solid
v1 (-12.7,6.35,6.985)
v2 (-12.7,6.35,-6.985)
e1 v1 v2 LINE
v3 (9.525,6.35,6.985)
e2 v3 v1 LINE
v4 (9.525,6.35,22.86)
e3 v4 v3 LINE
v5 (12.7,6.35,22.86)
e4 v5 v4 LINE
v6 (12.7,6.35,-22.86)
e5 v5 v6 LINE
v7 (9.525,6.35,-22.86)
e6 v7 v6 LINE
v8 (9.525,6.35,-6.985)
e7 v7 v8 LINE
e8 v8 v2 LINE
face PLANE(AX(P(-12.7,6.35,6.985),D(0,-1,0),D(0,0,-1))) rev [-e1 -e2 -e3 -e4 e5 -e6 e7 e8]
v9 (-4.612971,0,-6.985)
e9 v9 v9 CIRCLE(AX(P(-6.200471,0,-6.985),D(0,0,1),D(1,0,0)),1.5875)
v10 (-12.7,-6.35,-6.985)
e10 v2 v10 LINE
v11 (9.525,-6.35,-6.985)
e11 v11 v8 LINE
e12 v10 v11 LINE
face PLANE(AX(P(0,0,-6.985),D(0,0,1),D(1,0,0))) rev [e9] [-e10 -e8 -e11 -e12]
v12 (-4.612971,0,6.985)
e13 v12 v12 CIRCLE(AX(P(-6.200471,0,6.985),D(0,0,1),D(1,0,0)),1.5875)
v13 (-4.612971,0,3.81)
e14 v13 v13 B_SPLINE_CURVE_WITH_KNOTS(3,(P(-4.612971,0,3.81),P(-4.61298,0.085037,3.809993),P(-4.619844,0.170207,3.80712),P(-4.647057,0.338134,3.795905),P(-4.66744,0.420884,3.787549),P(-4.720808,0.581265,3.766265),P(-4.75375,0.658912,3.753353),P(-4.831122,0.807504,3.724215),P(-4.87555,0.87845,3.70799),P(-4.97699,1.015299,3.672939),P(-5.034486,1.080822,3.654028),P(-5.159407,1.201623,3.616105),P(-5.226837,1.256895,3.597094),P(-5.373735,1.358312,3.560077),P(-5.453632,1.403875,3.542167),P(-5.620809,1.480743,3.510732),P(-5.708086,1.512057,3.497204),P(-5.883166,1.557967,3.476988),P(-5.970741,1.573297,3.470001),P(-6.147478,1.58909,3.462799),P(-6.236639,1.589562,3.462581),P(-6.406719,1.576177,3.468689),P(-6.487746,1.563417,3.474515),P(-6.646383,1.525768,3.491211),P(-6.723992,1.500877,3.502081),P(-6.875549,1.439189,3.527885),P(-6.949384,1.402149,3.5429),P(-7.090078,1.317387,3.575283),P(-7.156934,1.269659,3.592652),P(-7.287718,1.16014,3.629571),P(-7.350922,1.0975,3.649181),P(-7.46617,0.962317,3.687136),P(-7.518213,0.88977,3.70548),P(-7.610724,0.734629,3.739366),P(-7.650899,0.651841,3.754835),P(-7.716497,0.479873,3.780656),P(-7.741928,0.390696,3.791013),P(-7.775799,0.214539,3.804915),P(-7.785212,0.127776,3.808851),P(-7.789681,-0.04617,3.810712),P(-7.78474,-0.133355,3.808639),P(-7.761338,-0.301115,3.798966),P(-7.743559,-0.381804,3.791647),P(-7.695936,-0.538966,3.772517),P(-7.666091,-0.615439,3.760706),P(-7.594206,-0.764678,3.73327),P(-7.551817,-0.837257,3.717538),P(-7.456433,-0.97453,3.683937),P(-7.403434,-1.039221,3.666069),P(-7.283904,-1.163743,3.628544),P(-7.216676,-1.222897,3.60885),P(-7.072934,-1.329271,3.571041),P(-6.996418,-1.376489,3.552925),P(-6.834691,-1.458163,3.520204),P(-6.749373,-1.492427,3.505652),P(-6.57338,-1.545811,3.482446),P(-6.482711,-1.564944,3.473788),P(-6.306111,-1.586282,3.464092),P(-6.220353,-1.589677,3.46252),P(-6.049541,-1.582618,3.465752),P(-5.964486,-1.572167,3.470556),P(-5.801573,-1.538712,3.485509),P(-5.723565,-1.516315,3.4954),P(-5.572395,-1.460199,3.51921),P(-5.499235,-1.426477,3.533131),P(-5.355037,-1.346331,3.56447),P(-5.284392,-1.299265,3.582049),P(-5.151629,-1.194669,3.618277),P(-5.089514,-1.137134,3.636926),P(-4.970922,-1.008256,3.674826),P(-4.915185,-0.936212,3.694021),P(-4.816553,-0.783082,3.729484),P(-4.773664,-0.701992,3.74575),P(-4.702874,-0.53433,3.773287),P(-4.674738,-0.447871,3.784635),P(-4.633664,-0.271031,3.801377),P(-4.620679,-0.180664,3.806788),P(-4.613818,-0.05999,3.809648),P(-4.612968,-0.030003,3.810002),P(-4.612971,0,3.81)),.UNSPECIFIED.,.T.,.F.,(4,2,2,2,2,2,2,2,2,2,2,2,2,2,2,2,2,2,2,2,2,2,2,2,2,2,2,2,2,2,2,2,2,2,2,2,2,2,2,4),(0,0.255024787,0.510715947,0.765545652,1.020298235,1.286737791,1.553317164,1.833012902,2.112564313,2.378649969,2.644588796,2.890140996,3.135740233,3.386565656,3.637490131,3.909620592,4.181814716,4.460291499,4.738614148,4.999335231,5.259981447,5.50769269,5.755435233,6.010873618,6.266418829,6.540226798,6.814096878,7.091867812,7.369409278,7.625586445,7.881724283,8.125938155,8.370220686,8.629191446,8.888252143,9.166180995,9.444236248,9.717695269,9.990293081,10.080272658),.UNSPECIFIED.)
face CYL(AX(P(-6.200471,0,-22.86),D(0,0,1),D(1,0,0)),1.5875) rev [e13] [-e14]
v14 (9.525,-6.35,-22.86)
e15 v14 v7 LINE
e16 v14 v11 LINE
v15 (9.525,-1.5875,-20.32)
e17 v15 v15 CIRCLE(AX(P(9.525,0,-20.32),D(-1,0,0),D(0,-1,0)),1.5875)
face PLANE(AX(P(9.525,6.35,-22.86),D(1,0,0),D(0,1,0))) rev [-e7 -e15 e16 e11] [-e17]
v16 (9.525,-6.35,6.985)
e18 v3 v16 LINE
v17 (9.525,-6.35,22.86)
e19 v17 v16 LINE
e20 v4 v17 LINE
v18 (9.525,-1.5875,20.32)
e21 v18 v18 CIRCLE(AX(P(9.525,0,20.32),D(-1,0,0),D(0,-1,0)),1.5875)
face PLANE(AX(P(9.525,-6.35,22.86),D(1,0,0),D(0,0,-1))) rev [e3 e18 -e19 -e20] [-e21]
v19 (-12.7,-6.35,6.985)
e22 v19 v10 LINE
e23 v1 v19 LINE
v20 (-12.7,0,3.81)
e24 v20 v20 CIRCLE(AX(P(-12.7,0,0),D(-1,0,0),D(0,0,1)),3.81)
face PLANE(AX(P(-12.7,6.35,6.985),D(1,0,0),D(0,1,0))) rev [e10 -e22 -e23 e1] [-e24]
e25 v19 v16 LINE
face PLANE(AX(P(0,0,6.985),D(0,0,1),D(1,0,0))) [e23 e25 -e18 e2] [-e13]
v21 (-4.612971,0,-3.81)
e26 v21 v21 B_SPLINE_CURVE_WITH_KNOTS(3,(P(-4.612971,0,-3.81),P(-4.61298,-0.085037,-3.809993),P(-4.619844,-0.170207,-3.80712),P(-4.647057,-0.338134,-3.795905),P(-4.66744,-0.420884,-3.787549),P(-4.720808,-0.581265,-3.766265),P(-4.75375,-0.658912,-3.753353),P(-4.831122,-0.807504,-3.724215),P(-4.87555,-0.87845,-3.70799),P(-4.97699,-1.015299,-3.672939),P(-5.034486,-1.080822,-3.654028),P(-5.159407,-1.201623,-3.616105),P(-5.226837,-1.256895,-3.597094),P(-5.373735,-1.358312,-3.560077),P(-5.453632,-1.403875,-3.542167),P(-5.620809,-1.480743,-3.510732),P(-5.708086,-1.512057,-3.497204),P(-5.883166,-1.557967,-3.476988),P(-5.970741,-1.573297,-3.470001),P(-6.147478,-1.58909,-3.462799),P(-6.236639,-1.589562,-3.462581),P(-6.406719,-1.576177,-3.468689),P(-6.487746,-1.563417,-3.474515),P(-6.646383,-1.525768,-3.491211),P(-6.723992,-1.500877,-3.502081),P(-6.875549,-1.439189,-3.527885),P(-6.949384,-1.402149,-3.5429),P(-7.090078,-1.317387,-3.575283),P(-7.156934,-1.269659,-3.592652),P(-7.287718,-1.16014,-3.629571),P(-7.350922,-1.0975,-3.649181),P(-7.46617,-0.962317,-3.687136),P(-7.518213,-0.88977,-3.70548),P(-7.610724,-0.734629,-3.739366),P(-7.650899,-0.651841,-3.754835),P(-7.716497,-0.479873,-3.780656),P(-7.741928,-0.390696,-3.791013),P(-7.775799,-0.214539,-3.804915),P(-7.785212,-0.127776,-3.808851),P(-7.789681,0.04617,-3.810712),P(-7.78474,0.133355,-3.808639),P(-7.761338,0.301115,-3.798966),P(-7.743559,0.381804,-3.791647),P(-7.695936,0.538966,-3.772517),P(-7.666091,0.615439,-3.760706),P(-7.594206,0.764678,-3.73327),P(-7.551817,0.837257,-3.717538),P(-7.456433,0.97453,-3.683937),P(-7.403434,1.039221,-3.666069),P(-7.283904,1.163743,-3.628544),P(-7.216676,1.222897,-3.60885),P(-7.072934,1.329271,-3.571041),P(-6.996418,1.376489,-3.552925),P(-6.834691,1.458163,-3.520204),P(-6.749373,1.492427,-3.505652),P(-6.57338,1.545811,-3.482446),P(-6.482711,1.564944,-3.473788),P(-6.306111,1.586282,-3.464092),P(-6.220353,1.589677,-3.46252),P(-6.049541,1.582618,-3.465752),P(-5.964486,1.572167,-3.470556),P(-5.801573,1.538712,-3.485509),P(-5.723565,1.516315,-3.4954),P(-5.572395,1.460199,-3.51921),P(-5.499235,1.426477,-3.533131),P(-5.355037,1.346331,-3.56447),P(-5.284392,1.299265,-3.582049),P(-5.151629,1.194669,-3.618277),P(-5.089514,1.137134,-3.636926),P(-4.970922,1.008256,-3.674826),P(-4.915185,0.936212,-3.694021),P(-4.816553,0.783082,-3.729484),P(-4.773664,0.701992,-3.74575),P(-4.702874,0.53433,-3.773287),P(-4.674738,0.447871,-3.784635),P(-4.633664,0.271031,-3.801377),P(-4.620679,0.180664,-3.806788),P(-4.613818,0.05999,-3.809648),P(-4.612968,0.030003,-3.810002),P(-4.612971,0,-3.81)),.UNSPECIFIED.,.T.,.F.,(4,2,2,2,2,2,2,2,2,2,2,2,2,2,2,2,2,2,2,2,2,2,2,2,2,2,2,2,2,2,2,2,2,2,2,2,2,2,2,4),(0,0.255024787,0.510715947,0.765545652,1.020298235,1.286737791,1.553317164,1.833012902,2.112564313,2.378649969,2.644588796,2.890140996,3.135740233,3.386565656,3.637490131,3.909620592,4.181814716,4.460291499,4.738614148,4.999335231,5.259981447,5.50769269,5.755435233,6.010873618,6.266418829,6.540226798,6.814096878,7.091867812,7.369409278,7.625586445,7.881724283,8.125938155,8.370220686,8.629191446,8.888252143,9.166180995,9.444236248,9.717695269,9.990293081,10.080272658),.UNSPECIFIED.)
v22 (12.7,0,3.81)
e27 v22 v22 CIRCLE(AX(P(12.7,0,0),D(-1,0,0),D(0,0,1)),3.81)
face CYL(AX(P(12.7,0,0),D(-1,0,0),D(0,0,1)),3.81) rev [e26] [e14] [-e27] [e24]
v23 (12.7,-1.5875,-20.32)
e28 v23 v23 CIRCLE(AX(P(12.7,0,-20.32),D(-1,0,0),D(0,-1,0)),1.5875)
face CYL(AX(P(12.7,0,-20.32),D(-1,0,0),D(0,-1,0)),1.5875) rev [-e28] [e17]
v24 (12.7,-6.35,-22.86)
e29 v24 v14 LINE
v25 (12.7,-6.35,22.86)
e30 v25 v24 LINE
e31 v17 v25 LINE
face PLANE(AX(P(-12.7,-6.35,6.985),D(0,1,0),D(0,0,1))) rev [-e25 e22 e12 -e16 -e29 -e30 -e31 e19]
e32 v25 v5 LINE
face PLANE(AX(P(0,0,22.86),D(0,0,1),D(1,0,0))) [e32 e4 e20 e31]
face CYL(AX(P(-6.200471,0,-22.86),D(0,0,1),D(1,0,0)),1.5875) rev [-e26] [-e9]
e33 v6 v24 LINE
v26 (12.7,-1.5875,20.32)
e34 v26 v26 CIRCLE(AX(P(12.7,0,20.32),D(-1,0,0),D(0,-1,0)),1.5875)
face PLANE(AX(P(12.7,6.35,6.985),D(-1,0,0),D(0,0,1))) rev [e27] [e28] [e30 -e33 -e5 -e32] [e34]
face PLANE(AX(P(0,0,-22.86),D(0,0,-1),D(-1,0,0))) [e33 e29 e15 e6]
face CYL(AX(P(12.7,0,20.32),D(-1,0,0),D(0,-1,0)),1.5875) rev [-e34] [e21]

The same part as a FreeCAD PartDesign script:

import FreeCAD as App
import Part
import Sketcher
from FreeCAD import Vector
Q = App.Units.Quantity


def add_polygon(sketch, points):
    """Adds a closed chain of lines whose ends are joined by coincident constraints."""
    first, n = sketch.GeometryCount, len(points)
    for a, b in zip(points, points[1:] + points[:1]):
        sketch.addGeometry(Part.LineSegment(App.Vector(*a, 0), App.Vector(*b, 0)), False)
    for i in range(n):
        sketch.addConstraint(Sketcher.Constraint("Coincident", first + i, 2, first + (i + 1) % n, 1))

doc = App.newDocument("Part")
params = doc.addObject("Spreadsheet::Sheet", "Params")
for row, (alias, value) in enumerate([
    ("sketch1_width", "1 in"),
    ("sketch1_height", "0.5 in"),
    ("pad1_length", "0.55 in"),
    ("sketch2_height", "0.5 in"),
    ("sketch2_width", "0.125 in"),
    ("pad2_length", "0.625 in"),
    ("sketch3_height", "0.5 in"),
    ("sketch3_width", "0.125 in"),
    ("pad3_length", "0.625 in"),
    ("sketch4_diameter", "0.125 in"),
    ("sketch5_diameter", "0.3 in"),
    ("sketch6_diameter", "0.125 in"),
], start=1):
    params.set(f"A{row}", alias)
    params.set(f"B{row}", "=" + value)
    params.setAlias(f"B{row}", alias)

body = doc.addObject("PartDesign::Body", "Body")

# Sketch on XY plane
sketch1 = body.newObject("Sketcher::SketchObject", "Sketch")
sketch1.AttachmentSupport = (doc.getObject("XY_Plane"), [""])
sketch1.MapMode = "FlatFace"
add_polygon(sketch1, [(-13, 6), (-13, -6), (13, -6), (13, 6)])  # lines 0-3
sketch1.addConstraint(Sketcher.Constraint("Vertical", 0))
sketch1.addConstraint(Sketcher.Constraint("Horizontal", 1))
sketch1.addConstraint(Sketcher.Constraint("Vertical", 2))
sketch1.addConstraint(Sketcher.Constraint("Horizontal", 3))
sketch1.addConstraint(Sketcher.Constraint("Symmetric", 0, 2, 2, 2, -1, 1))
sketch1.addConstraint(Sketcher.Constraint("DistanceX", 1, 1, 1, 2, Q("1 in")))
sketch1.addConstraint(Sketcher.Constraint("DistanceY", 0, 2, 0, 1, Q("0.5 in")))
sketch1.setExpression("Constraints[9]", "Params.sketch1_width")
sketch1.setExpression("Constraints[10]", "Params.sketch1_height")
pad1 = body.newObject("PartDesign::Pad", "Pad")
pad1.Profile = sketch1
pad1.setExpression("Length", "Params.pad1_length")
pad1.Midplane = True

# Sketch on XY plane
sketch2 = body.newObject("Sketcher::SketchObject", "Sketch001")
sketch2.AttachmentSupport = (doc.getObject("XY_Plane"), [""])
sketch2.MapMode = "FlatFace"
sketch2.AttachmentOffset = App.Placement(Vector(0, 0, -0.275 * 25.4), App.Rotation())
add_polygon(sketch2, [(12.7, 6.3), (12.7, -6.3), (9.5, -6.3), (9.5, 6.3)])  # lines 0-3
sketch2.addConstraint(Sketcher.Constraint("Vertical", 0))
sketch2.addConstraint(Sketcher.Constraint("Horizontal", 1))
sketch2.addConstraint(Sketcher.Constraint("Vertical", 2))
sketch2.addConstraint(Sketcher.Constraint("Horizontal", 3))
sketch2.addConstraint(Sketcher.Constraint("DistanceY", 0, 2, 0, 1, Q("0.5 in")))
sketch2.addConstraint(Sketcher.Constraint("DistanceX", -1, 1, 0, 2, Q("0.5 in")))
sketch2.addConstraint(Sketcher.Constraint("DistanceX", 1, 2, 1, 1, Q("0.125 in")))
sketch2.addConstraint(Sketcher.Constraint("DistanceY", 0, 2, -1, 1, Q("0.25 in")))
sketch2.setExpression("Constraints[8]", "Params.sketch2_height")
sketch2.setExpression("Constraints[10]", "Params.sketch2_width")
pad2 = body.newObject("PartDesign::Pad", "Pad001")
pad2.Profile = sketch2
pad2.setExpression("Length", "Params.pad2_length")
pad2.Reversed = True

# Sketch on XY plane
sketch3 = body.newObject("Sketcher::SketchObject", "Sketch002")
sketch3.AttachmentSupport = (doc.getObject("XY_Plane"), [""])
sketch3.MapMode = "FlatFace"
sketch3.AttachmentOffset = App.Placement(Vector(0, 0, 0.275 * 25.4), App.Rotation())
add_polygon(sketch3, [(9.5, 6.3), (9.5, -6.3), (12.7, -6.3), (12.7, 6.3)])  # lines 0-3
sketch3.addConstraint(Sketcher.Constraint("Vertical", 0))
sketch3.addConstraint(Sketcher.Constraint("Horizontal", 1))
sketch3.addConstraint(Sketcher.Constraint("Vertical", 2))
sketch3.addConstraint(Sketcher.Constraint("Horizontal", 3))
sketch3.addConstraint(Sketcher.Constraint("DistanceY", 0, 2, 0, 1, Q("0.5 in")))
sketch3.addConstraint(Sketcher.Constraint("DistanceX", -1, 1, 1, 2, Q("0.5 in")))
sketch3.addConstraint(Sketcher.Constraint("DistanceX", 1, 1, 1, 2, Q("0.125 in")))
sketch3.addConstraint(Sketcher.Constraint("DistanceY", 0, 2, -1, 1, Q("0.25 in")))
sketch3.setExpression("Constraints[8]", "Params.sketch3_height")
sketch3.setExpression("Constraints[10]", "Params.sketch3_width")
pad3 = body.newObject("PartDesign::Pad", "Pad002")
pad3.Profile = sketch3
pad3.setExpression("Length", "Params.pad3_length")

# Sketch on YZ plane
sketch4 = body.newObject("Sketcher::SketchObject", "Sketch003")
sketch4.AttachmentSupport = (doc.getObject("YZ_Plane"), [""])
sketch4.MapMode = "FlatFace"
sketch4.AttachmentOffset = App.Placement(Vector(0, 0, 0.375 * 25.4), App.Rotation())
sketch4.addGeometry(Part.Circle(Vector(0, -20.3, 0), Vector(0, 0, 1), 1.6), False)
sketch4.addGeometry(Part.Circle(Vector(0, 20.3, 0), Vector(0, 0, 1), 1.6), False)
sketch4.addConstraint(Sketcher.Constraint("Equal", 0, 1))
sketch4.addConstraint(Sketcher.Constraint("Symmetric", 0, 3, 1, 3, -1, 1))
sketch4.addConstraint(Sketcher.Constraint("PointOnObject", 0, 3, -2))
sketch4.addConstraint(Sketcher.Constraint("Diameter", 0, Q("0.125 in")))
sketch4.addConstraint(Sketcher.Constraint("DistanceY", 0, 3, -1, 1, Q("0.8 in")))
sketch4.setExpression("Constraints[3]", "Params.sketch4_diameter")
pocket1 = body.newObject("PartDesign::Pocket", "Pocket")
pocket1.Profile = sketch4
pocket1.Type = "ThroughAll"
pocket1.Reversed = True

# Sketch on YZ plane
sketch5 = body.newObject("Sketcher::SketchObject", "Sketch004")
sketch5.AttachmentSupport = (doc.getObject("YZ_Plane"), [""])
sketch5.MapMode = "FlatFace"
sketch5.AttachmentOffset = App.Placement(Vector(0, 0, -0.5 * 25.4), App.Rotation())
sketch5.addGeometry(Part.Circle(Vector(0, 0, 0), Vector(0, 0, 1), 3.8), False)
sketch5.addConstraint(Sketcher.Constraint("Coincident", 0, 3, -1, 1))
sketch5.addConstraint(Sketcher.Constraint("Diameter", 0, Q("0.3 in")))
sketch5.setExpression("Constraints[1]", "Params.sketch5_diameter")
pocket2 = body.newObject("PartDesign::Pocket", "Pocket001")
pocket2.Profile = sketch5
pocket2.Type = "ThroughAll"
pocket2.Reversed = True

# Sketch on XY plane
sketch6 = body.newObject("Sketcher::SketchObject", "Sketch005")
sketch6.AttachmentSupport = (doc.getObject("XY_Plane"), [""])
sketch6.MapMode = "FlatFace"
sketch6.AttachmentOffset = App.Placement(Vector(0, 0, 0.275 * 25.4), App.Rotation())
sketch6.addGeometry(Part.Circle(Vector(-6.2, 0, 0), Vector(0, 0, 1), 1.6), False)
sketch6.addConstraint(Sketcher.Constraint("PointOnObject", 0, 3, -1))
sketch6.addConstraint(Sketcher.Constraint("Diameter", 0, Q("0.125 in")))
sketch6.addConstraint(Sketcher.Constraint("DistanceX", 0, 3, -1, 1, 6.200471))
sketch6.setExpression("Constraints[1]", "Params.sketch6_diameter")
pocket3 = body.newObject("PartDesign::Pocket", "Pocket002")
pocket3.Profile = sketch6
pocket3.Type = "ThroughAll"

doc.recompute()
